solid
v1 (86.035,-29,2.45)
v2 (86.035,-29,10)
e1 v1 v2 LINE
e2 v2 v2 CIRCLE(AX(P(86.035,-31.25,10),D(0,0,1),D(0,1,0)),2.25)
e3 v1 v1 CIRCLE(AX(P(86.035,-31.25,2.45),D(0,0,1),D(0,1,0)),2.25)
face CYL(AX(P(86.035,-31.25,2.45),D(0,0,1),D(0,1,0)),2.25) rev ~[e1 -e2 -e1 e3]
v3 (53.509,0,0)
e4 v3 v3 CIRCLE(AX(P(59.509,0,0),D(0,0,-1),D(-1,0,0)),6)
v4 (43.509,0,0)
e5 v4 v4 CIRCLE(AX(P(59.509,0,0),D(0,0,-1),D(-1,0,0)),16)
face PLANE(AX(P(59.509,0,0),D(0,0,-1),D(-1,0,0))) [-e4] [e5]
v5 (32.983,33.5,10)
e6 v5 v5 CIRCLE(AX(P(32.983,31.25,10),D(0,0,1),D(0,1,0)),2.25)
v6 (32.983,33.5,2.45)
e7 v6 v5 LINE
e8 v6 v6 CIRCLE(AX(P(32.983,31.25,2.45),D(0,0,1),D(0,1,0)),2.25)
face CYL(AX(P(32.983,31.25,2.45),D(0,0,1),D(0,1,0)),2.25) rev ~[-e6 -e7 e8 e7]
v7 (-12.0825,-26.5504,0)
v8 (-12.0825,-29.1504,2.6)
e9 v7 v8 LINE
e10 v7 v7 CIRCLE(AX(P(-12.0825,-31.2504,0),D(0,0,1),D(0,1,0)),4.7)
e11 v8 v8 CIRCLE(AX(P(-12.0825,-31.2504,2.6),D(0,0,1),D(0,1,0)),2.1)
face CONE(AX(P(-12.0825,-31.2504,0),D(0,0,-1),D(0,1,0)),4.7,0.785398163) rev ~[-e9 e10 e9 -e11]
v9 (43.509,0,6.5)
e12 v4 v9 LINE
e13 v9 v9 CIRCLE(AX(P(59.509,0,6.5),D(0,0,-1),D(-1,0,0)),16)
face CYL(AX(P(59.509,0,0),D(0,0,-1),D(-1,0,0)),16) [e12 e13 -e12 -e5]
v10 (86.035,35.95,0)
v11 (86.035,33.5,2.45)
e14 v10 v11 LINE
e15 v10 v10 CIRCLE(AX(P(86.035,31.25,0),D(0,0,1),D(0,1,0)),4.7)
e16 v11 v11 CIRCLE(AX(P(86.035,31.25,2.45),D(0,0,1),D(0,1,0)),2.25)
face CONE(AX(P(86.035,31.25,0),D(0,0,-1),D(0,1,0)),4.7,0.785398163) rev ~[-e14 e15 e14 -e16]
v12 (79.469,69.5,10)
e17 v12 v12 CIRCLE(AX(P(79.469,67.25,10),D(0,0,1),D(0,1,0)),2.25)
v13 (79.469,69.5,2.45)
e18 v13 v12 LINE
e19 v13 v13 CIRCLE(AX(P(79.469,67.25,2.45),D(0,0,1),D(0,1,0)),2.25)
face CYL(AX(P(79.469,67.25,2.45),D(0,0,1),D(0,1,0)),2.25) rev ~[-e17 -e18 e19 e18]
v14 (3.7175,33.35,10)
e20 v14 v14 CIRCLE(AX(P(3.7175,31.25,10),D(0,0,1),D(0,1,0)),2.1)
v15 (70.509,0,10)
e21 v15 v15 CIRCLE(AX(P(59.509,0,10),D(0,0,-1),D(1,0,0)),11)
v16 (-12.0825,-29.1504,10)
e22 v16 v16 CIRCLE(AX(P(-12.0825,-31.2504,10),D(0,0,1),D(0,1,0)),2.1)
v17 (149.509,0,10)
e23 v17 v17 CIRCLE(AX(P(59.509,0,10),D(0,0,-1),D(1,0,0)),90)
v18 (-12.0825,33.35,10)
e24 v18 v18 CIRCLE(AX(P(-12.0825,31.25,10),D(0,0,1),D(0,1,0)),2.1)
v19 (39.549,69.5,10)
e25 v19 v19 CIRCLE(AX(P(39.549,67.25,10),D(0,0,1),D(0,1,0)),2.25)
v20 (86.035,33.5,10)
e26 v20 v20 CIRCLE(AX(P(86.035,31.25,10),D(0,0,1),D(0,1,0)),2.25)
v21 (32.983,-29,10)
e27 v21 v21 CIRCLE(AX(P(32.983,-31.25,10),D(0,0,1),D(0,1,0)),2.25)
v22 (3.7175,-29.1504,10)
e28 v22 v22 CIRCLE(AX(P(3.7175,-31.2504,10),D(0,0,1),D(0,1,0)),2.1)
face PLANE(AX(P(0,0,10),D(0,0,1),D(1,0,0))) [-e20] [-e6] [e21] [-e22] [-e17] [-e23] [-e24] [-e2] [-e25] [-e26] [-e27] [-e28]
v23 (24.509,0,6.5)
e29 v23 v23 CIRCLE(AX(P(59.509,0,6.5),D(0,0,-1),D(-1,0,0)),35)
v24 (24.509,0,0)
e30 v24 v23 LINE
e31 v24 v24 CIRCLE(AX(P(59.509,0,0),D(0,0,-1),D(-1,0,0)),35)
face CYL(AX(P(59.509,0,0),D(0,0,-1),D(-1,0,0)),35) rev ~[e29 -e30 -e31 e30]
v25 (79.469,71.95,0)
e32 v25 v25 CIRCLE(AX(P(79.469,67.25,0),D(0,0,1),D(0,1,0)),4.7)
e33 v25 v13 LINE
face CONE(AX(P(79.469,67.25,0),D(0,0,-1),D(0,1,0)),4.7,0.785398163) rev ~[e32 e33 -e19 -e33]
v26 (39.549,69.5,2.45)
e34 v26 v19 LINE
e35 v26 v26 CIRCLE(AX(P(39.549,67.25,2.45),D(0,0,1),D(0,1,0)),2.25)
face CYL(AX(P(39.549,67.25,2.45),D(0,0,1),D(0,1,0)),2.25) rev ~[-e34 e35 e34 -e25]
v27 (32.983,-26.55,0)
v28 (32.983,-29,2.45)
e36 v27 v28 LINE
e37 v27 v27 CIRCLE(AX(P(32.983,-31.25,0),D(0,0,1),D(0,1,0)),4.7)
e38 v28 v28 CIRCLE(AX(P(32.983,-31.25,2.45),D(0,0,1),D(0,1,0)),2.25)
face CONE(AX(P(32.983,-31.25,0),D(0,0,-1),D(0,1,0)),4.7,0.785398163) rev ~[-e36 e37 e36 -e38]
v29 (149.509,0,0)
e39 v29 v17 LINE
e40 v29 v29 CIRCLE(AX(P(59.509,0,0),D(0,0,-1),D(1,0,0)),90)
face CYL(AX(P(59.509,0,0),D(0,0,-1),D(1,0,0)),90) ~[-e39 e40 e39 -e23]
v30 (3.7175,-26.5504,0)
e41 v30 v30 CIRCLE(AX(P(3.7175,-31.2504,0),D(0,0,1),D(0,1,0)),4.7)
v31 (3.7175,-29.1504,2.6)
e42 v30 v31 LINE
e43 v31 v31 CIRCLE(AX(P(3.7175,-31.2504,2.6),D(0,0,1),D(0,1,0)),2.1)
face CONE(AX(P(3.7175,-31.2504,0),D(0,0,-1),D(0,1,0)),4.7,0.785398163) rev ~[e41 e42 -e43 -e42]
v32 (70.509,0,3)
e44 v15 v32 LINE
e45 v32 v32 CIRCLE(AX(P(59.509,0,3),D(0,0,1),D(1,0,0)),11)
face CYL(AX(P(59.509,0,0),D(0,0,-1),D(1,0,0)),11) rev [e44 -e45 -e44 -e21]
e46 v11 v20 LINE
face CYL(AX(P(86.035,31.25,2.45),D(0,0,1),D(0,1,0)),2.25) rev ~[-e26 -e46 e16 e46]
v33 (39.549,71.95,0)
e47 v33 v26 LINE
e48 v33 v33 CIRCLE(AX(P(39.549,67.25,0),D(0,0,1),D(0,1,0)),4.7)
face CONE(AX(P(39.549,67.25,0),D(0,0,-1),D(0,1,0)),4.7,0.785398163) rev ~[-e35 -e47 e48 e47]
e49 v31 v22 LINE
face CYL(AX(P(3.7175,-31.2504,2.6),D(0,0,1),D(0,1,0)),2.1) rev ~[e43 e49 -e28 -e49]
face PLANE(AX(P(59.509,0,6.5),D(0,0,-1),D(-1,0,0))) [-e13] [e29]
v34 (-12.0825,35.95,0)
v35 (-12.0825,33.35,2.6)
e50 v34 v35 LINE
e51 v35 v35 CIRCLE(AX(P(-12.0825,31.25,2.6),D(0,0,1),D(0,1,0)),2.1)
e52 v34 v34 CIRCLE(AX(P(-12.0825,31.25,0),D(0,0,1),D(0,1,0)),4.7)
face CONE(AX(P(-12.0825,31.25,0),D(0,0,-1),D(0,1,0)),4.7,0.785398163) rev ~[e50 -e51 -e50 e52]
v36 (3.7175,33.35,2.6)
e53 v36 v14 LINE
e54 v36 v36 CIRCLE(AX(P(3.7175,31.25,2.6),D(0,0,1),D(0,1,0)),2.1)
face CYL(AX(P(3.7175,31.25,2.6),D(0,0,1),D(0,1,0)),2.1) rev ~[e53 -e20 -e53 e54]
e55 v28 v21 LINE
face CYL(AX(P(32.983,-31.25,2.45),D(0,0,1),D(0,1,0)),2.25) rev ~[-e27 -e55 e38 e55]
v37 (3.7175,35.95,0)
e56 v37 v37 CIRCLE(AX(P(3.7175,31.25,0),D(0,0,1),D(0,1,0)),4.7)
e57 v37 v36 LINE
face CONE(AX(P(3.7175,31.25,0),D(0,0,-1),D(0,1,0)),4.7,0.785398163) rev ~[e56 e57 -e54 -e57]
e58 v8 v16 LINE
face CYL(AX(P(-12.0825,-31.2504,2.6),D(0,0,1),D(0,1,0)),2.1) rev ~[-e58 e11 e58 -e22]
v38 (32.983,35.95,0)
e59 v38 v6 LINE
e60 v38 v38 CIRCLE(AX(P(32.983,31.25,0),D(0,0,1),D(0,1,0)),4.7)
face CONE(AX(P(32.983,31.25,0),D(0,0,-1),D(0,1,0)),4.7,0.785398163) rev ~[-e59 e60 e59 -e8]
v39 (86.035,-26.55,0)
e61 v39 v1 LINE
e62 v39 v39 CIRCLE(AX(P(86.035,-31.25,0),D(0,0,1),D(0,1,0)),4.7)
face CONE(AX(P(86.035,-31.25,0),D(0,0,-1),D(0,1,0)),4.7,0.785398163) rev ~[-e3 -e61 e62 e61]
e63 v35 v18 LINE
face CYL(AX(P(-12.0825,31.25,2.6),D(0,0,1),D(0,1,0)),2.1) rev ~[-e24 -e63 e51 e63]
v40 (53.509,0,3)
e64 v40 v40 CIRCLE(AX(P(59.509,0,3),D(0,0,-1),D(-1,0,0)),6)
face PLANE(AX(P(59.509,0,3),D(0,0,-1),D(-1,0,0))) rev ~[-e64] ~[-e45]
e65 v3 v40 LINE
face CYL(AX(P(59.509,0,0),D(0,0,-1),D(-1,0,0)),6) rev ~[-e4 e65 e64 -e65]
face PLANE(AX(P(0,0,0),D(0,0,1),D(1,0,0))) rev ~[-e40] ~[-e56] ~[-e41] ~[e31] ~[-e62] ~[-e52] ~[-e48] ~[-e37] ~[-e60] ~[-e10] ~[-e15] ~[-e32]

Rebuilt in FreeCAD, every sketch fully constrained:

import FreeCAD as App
import Part
import Sketcher
from FreeCAD import Vector
Q = App.Units.Quantity

doc = App.newDocument("Part")
body = doc.addObject("PartDesign::Body", "Body")

# Sketch on XY plane
sketch1 = body.newObject("Sketcher::SketchObject", "Sketch")
sketch1.AttachmentSupport = (doc.getObject("XY_Plane"), [""])
sketch1.MapMode = "FlatFace"
sketch1.addGeometry([
    Part.Circle(Vector(59.509, 0, 0), Vector(0, 0, 1), 90),
    Part.Circle(Vector(59.509, 0, 0), Vector(0, 0, 1), 11),
], False)
sketch1.addConstraint([
    Sketcher.Constraint("Coincident", 1, 3, 0, 3),
    Sketcher.Constraint("PointOnObject", 0, 3, -1),
    Sketcher.Constraint("Diameter", 0, Q("180 mm")),
    Sketcher.Constraint("Diameter", 1, Q("22 mm")),
    Sketcher.Constraint("DistanceX", -1, 1, 0, 3, Q("59.509 mm")),
])
pad1 = body.newObject("PartDesign::Pad", "Pad")
pad1.Profile = sketch1
pad1.Length = 10

# Sketch on XY plane
sketch2 = body.newObject("Sketcher::SketchObject", "Sketch001")
sketch2.AttachmentSupport = (doc.getObject("XY_Plane"), [""])
sketch2.MapMode = "FlatFace"
sketch2.addGeometry([
    Part.Circle(Vector(59.509, 0, 0), Vector(0, 0, 1), 35),
    Part.Circle(Vector(59.509, 0, 0), Vector(0, 0, 1), 16),
    Part.Circle(Vector(59.509, 0, 0), Vector(0, 0, 1), 11),
], False)
sketch2.addConstraint([
    Sketcher.Constraint("Coincident", 1, 3, 0, 3),
    Sketcher.Constraint("Coincident", 2, 3, 0, 3),
    Sketcher.Constraint("PointOnObject", 0, 3, -1),
    Sketcher.Constraint("Diameter", 0, Q("70 mm")),
    Sketcher.Constraint("Diameter", 1, Q("32 mm")),
    Sketcher.Constraint("Diameter", 2, Q("22 mm")),
    Sketcher.Constraint("DistanceX", -1, 1, 0, 3, Q("59.509 mm")),
])
pocket1 = body.newObject("PartDesign::Pocket", "Pocket")
pocket1.Profile = sketch2
pocket1.Length = 6.5
pocket1.Reversed = True

# Sketch on XY plane
sketch3 = body.newObject("Sketcher::SketchObject", "Sketch002")
sketch3.AttachmentSupport = (doc.getObject("XY_Plane"), [""])
sketch3.MapMode = "FlatFace"
sketch3.addGeometry([
    Part.Circle(Vector(59.509, 0, 0), Vector(0, 0, 1), 11),
    Part.Circle(Vector(59.509, 0, 0), Vector(0, 0, 1), 6),
], False)
sketch3.addConstraint([
    Sketcher.Constraint("Coincident", 1, 3, 0, 3),
    Sketcher.Constraint("PointOnObject", 0, 3, -1),
    Sketcher.Constraint("Diameter", 1, Q("12 mm")),
    Sketcher.Constraint("Diameter", 0, Q("22 mm")),
    Sketcher.Constraint("DistanceX", -1, 1, 0, 3, Q("59.509 mm")),
])
pad2 = body.newObject("PartDesign::Pad", "Pad001")
pad2.Profile = sketch3
pad2.Length = 3

# Sketch on XY plane
sketch4 = body.newObject("Sketcher::SketchObject", "Sketch003")
sketch4.AttachmentSupport = (doc.getObject("XY_Plane"), [""])
sketch4.MapMode = "FlatFace"
sketch4.addGeometry([
    Part.Circle(Vector(-12.0825, 31.25, 0), Vector(0, 0, 1), 2.1),
    Part.Circle(Vector(3.7175, 31.25, 0), Vector(0, 0, 1), 2.1),
    Part.Circle(Vector(-12.0825, -31.2504, 0), Vector(0, 0, 1), 2.1),
    Part.Circle(Vector(3.7175, -31.2504, 0), Vector(0, 0, 1), 2.1),
], False)
sketch4.addConstraint([
    Sketcher.Constraint("Equal", 0, 1),
    Sketcher.Constraint("Equal", 1, 2),
    Sketcher.Constraint("Equal", 2, 3),
    Sketcher.Constraint("Symmetric", 0, 3, 2, 3, -1),
    Sketcher.Constraint("Symmetric", 1, 3, 3, 3, -1),
    Sketcher.Constraint("Horizontal", 0, 3, 1, 3),
    Sketcher.Constraint("Diameter", 0, Q("4.2 mm")),
    Sketcher.Constraint("DistanceX", 0, 3, 1, 3, Q("15.8 mm")),
    Sketcher.Constraint("DistanceY", -1, 1, 0, 3, Q("31.25 mm")),
    Sketcher.Constraint("DistanceX", 0, 3, -1, 1, Q("12.0825 mm")),
])
doc.recompute()
hole = body.newObject("PartDesign::Hole", "Hole")
hole.Profile = sketch4
hole.ThreadType = "None"
hole.Diameter = 4.2
hole.DepthType = "ThroughAll"
hole.HoleCutType = "Countersink"
hole.HoleCutDiameter = 9.4
hole.HoleCutCountersinkAngle = 90
hole.Reversed = True

# Sketch on XY plane
sketch5 = body.newObject("Sketcher::SketchObject", "Sketch004")
sketch5.AttachmentSupport = (doc.getObject("XY_Plane"), [""])
sketch5.MapMode = "FlatFace"
sketch5.addGeometry([
    Part.Circle(Vector(86.035, 31.25, 0), Vector(0, 0, 1), 2.25),
    Part.Circle(Vector(86.035, -31.25, 0), Vector(0, 0, 1), 2.25),
    Part.Circle(Vector(32.983, -31.25, 0), Vector(0, 0, 1), 2.25),
    Part.Circle(Vector(32.983, 31.25, 0), Vector(0, 0, 1), 2.25),
], False)
sketch5.addConstraint([
    Sketcher.Constraint("Equal", 0, 1),
    Sketcher.Constraint("Equal", 1, 2),
    Sketcher.Constraint("Equal", 2, 3),
    Sketcher.Constraint("Symmetric", 0, 3, 1, 3, -1),
    Sketcher.Constraint("Symmetric", 2, 3, 3, 3, -1),
    Sketcher.Constraint("Horizontal", 1, 3, 2, 3),
    Sketcher.Constraint("Diameter", 0, Q("4.5 mm")),
    Sketcher.Constraint("DistanceY", 1, 3, 0, 3, Q("62.5 mm")),
    Sketcher.Constraint("DistanceX", -1, 1, 0, 3, Q("86.035 mm")),
    Sketcher.Constraint("DistanceX", -1, 1, 2, 3, Q("32.983 mm")),
])
doc.recompute()
hole2 = body.newObject("PartDesign::Hole", "Hole001")
hole2.Profile = sketch5
hole2.ThreadType = "None"
hole2.Diameter = 4.5
hole2.DepthType = "Dimension"
hole2.Depth = 14.2
hole2.DrillPoint = "Angled"
hole2.DrillPointAngle = 118
hole2.HoleCutType = "Countersink"
hole2.HoleCutDiameter = 9.4
hole2.HoleCutCountersinkAngle = 90
hole2.Reversed = True

# Sketch on XY plane
sketch6 = body.newObject("Sketcher::SketchObject", "Sketch005")
sketch6.AttachmentSupport = (doc.getObject("XY_Plane"), [""])
sketch6.MapMode = "FlatFace"
sketch6.addGeometry([
    Part.Circle(Vector(79.469, 67.25, 0), Vector(0, 0, 1), 2.25),
    Part.Circle(Vector(39.549, 67.25, 0), Vector(0, 0, 1), 2.25),
], False)
sketch6.addConstraint([
    Sketcher.Constraint("Equal", 0, 1),
    Sketcher.Constraint("Horizontal", 0, 3, 1, 3),
    Sketcher.Constraint("Diameter", 0, Q("4.5 mm")),
    Sketcher.Constraint("DistanceY", -1, 1, 0, 3, Q("67.25 mm")),
    Sketcher.Constraint("DistanceX", 1, 3, 0, 3, Q("39.92 mm")),
    Sketcher.Constraint("DistanceX", -1, 1, 0, 3, Q("79.469 mm")),
])
doc.recompute()
hole3 = body.newObject("PartDesign::Hole", "Hole002")
hole3.Profile = sketch6
hole3.ThreadType = "None"
hole3.Diameter = 4.5
hole3.DepthType = "Dimension"
hole3.Depth = 15
hole3.DrillPoint = "Angled"
hole3.DrillPointAngle = 118
hole3.HoleCutType = "Countersink"
hole3.HoleCutDiameter = 9.4
hole3.HoleCutCountersinkAngle = 90
hole3.Reversed = True

doc.recompute()
